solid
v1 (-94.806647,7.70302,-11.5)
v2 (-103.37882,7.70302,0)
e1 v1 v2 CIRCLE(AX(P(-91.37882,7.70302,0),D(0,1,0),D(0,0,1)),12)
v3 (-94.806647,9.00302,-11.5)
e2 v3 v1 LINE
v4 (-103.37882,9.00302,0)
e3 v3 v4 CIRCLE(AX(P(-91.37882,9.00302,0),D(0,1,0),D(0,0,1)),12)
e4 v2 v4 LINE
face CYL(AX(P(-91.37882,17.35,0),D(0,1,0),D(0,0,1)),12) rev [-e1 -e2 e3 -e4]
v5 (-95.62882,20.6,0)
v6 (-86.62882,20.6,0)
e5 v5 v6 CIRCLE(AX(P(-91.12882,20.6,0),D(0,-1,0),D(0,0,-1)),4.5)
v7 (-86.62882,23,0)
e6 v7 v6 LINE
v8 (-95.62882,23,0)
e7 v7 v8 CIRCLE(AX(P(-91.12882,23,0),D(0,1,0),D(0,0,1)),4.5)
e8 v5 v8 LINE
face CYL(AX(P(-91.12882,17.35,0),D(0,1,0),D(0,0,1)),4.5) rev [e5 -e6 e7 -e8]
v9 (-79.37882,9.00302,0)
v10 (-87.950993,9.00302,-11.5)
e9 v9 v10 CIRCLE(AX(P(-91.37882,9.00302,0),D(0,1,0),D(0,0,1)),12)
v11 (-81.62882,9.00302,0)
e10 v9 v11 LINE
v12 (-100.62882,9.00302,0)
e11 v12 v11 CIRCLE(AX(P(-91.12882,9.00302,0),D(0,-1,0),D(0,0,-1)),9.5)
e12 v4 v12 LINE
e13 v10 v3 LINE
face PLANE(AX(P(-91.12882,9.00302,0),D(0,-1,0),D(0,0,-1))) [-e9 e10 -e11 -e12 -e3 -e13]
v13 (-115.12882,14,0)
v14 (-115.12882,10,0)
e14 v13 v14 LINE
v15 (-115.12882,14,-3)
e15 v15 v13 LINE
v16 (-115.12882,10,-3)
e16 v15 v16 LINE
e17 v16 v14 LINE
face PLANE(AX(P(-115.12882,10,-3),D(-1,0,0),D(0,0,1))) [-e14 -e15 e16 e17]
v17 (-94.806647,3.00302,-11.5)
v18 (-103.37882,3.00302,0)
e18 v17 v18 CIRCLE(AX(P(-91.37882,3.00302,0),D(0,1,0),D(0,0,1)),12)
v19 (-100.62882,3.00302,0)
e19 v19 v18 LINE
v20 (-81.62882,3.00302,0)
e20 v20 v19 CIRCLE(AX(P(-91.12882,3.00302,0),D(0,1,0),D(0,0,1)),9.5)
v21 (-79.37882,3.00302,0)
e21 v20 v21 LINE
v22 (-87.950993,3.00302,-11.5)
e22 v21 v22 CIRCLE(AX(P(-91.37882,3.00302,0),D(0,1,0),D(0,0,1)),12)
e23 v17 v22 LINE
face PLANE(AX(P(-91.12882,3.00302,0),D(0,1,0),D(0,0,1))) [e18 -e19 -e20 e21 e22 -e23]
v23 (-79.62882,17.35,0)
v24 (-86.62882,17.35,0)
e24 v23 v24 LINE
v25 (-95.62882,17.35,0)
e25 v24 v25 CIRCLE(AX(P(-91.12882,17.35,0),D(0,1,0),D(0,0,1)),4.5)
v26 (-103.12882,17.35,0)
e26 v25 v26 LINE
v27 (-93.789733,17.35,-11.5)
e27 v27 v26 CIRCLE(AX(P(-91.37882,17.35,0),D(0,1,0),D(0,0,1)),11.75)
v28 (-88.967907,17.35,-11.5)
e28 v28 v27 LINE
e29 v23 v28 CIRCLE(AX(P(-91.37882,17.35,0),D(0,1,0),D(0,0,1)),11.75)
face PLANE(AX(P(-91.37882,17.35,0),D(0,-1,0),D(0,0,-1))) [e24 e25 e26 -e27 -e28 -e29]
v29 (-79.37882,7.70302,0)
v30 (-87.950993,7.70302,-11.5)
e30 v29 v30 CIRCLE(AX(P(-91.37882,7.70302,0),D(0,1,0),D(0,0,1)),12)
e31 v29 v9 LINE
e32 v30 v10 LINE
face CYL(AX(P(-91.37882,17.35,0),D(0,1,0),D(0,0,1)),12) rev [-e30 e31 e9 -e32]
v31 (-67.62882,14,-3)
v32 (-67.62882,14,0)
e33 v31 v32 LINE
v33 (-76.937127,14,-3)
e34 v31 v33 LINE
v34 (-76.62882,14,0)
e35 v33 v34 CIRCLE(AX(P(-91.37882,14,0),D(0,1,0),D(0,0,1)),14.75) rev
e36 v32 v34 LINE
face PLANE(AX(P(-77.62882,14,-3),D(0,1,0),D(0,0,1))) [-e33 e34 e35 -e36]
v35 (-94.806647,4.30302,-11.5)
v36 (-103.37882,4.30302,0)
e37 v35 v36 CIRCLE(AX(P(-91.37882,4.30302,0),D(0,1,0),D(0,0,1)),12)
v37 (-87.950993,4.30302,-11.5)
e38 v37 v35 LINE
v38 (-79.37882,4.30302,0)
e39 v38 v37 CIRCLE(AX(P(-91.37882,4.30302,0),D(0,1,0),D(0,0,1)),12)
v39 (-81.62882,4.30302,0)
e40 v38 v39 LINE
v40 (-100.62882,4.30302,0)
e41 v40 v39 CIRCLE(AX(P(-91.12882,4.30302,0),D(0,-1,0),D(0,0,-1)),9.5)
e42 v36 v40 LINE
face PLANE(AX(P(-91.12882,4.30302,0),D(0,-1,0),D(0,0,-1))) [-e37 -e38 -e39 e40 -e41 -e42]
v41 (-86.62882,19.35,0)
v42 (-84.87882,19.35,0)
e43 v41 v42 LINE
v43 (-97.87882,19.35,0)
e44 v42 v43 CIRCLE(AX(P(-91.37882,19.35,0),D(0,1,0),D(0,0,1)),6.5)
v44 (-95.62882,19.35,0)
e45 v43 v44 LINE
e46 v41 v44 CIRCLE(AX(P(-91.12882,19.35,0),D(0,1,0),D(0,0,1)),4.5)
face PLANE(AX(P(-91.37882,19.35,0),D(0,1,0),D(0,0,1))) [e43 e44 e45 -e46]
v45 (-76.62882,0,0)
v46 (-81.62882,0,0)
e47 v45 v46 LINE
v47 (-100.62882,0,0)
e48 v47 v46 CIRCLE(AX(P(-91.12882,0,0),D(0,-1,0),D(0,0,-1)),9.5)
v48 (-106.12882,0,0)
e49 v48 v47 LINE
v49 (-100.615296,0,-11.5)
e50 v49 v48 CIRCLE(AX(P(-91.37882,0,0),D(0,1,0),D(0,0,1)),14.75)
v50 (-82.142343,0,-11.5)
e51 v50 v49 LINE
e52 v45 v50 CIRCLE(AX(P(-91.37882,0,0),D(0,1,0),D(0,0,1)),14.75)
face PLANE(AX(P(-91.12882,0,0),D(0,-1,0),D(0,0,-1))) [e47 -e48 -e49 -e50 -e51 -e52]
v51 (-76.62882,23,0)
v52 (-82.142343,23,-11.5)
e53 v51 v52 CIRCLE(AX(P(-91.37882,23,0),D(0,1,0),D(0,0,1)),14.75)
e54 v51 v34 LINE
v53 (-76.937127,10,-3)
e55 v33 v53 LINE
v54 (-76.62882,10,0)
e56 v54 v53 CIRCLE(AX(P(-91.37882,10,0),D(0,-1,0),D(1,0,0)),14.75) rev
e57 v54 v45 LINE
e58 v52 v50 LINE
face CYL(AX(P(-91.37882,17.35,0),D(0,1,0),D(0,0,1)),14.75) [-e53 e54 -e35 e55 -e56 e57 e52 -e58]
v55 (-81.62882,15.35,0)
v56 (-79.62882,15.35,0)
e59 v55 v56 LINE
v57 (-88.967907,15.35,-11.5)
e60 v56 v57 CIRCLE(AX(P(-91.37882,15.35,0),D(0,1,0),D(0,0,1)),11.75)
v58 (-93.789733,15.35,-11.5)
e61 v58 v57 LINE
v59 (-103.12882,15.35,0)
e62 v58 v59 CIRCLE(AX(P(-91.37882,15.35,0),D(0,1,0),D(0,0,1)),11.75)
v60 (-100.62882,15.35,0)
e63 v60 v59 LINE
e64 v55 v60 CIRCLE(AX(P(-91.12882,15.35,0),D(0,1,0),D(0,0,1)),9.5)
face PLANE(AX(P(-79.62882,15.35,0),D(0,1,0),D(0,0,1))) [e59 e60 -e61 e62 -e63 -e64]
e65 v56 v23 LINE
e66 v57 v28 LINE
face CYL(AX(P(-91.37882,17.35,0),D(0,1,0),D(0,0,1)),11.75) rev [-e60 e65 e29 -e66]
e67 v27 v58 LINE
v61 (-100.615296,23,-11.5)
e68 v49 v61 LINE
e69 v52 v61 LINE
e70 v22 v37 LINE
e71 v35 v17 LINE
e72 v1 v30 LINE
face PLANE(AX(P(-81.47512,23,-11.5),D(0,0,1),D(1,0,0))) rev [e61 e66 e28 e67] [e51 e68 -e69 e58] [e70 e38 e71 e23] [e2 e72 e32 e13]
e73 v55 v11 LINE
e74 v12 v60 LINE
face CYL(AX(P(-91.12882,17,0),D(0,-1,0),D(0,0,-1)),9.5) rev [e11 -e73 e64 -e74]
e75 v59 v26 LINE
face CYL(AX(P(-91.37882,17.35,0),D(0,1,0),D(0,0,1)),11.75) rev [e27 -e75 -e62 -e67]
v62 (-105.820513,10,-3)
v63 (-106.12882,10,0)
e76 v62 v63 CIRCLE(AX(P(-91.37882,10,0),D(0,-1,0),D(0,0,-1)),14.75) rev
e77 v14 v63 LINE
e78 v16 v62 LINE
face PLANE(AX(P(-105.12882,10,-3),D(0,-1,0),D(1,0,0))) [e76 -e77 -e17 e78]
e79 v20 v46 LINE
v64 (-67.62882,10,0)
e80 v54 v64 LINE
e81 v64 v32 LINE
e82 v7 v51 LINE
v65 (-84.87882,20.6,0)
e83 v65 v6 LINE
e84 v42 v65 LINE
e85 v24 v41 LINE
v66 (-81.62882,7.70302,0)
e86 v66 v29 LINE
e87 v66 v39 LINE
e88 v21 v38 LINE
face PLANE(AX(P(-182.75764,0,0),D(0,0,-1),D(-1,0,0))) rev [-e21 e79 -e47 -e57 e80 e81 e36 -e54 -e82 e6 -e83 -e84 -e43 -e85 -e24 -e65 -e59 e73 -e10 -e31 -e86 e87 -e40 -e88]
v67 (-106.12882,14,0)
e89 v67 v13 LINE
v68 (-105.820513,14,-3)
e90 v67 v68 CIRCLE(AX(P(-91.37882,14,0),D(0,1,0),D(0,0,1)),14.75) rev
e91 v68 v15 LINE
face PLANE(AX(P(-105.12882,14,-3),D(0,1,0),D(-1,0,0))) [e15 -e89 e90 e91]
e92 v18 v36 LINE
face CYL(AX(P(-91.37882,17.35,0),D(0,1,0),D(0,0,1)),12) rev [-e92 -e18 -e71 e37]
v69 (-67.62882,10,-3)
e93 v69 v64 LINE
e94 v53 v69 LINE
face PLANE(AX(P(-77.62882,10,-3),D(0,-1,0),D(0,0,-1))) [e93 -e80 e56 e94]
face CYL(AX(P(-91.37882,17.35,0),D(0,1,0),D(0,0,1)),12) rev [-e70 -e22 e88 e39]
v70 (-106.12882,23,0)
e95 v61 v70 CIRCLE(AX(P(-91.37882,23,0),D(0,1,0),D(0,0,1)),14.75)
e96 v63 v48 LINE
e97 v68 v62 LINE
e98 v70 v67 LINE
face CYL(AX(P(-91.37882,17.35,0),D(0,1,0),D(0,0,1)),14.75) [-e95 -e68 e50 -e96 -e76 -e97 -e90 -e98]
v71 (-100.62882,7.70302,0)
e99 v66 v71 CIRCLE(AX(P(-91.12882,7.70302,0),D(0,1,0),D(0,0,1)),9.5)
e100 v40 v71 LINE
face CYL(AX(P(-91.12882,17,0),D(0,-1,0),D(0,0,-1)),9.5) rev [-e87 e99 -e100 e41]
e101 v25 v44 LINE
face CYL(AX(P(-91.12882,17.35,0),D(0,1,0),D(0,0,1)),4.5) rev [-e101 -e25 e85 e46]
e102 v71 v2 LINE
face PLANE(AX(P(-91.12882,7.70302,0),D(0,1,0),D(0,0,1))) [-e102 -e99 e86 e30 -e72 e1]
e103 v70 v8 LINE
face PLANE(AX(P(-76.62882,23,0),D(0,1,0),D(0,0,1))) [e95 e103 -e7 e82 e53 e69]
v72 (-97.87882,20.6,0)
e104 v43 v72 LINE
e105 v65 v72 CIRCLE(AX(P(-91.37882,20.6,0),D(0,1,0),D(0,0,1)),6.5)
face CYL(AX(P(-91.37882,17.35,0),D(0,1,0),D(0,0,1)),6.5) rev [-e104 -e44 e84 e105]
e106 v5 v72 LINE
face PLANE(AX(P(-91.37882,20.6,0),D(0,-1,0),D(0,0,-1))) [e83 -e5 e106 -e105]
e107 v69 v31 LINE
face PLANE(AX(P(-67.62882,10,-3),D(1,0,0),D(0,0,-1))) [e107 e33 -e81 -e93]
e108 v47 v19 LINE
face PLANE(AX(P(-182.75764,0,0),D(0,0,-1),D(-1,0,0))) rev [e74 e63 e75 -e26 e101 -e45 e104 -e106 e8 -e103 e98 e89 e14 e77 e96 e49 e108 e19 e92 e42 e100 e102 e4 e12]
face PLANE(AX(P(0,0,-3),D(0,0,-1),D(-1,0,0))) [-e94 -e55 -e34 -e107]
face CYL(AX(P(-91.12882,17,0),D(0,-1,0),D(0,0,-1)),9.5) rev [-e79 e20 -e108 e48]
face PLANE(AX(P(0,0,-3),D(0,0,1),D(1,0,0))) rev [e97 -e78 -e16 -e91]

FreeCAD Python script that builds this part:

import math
import FreeCAD as App
import Part
import Sketcher
Q = App.Units.Quantity


def add_polygon(sketch, points):
    """Adds a closed chain of lines whose ends are joined by coincident constraints."""
    first, n = sketch.GeometryCount, len(points)
    for a, b in zip(points, points[1:] + points[:1]):
        sketch.addGeometry(Part.LineSegment(App.Vector(*a, 0), App.Vector(*b, 0)), False)
    for i in range(n):
        sketch.addConstraint(Sketcher.Constraint("Coincident", first + i, 2, first + (i + 1) % n, 1))

doc = App.newDocument("Part")
params = doc.addObject("Spreadsheet::Sheet", "Params")
for row, (alias, value) in enumerate([
    ("sketch1_height", "2 mm"),
    ("sketch1_height2", "23 mm"),
    ("sketch1_width", "14.5 mm"),
    ("sketch1_width2", "11.5 mm"),
    ("sketch1_width3", "6.5 mm"),
    ("revolution_angle", "180 deg"),
    ("sketch2_radius", "9.5 mm"),
    ("pocket1_length", "17 mm"),
    ("sketch3_radius", "4.5 mm"),
    ("pocket2_length", "5.65 mm"),
    ("pocket3_length", "23 mm"),
    ("sketch5_width", "1 mm"),
    ("sketch5_height", "4 mm"),
    ("pocket4_length", "3 mm"),
    ("sketch6_width", "10 mm"),
    ("sketch6_height", "4 mm"),
    ("pad1_length", "3 mm"),
], start=1):
    params.set(f"A{row}", alias)
    params.set(f"B{row}", "=" + value)
    params.setAlias(f"B{row}", alias)

body = doc.addObject("PartDesign::Body", "Body")

# Sketch on XY plane
sketch1 = doc.addObject("Sketcher::SketchObject", "Sketch")
body.addObject(sketch1)
sketch1.AttachmentSupport = (doc.XY_Plane, [""])
sketch1.MapMode = "FlatFace"
add_polygon(sketch1, [(-106.1, 0), (-91.6, 0), (-91.6, 3), (-103.4, 3), (-103.4, 4.3), (-91.6, 4.3), (-91.6, 7.7), (-103.4, 7.7), (-103.4, 9), (-91.6, 9), (-91.6, 15.3), (-103.1, 15.3), (-103.1, 17.4), (-91.4, 17.4), (-91.4, 19.4), (-97.9, 19.4), (-97.9, 20.6), (-91.4, 20.6), (-91.4, 23), (-106.1, 23)])  # lines 0-19
sketch1.addGeometry(Part.LineSegment(App.Vector(-91.4, 23, 0), App.Vector(-91.4, 0, 0)), True)  # axis
sketch1.addConstraint([
    Sketcher.Constraint("Horizontal", 0),
    Sketcher.Constraint("Vertical", 1),
    Sketcher.Constraint("Horizontal", 2),
    Sketcher.Constraint("Vertical", 3),
    Sketcher.Constraint("Horizontal", 4),
    Sketcher.Constraint("Vertical", 5),
    Sketcher.Constraint("Horizontal", 6),
    Sketcher.Constraint("Vertical", 7),
    Sketcher.Constraint("Horizontal", 8),
    Sketcher.Constraint("Vertical", 9),
    Sketcher.Constraint("Horizontal", 10),
    Sketcher.Constraint("Vertical", 11),
    Sketcher.Constraint("Horizontal", 12),
    Sketcher.Constraint("Vertical", 13),
    Sketcher.Constraint("Horizontal", 14),
    Sketcher.Constraint("Vertical", 15),
    Sketcher.Constraint("Horizontal", 16),
    Sketcher.Constraint("Vertical", 17),
    Sketcher.Constraint("Horizontal", 18),
    Sketcher.Constraint("Vertical", 19),
    Sketcher.Constraint("Vertical", 20),
    Sketcher.Constraint("Coincident", 20, 1, 17, 2),
    Sketcher.Constraint("PointOnObject", 0, 2, -1),
    Sketcher.Constraint("PointOnObject", 20, 2, -1),
    Sketcher.Constraint("Vertical", 1, 2, 4, 2),
    Sketcher.Constraint("Vertical", 3, 2, 6, 2),
    Sketcher.Constraint("Vertical", 5, 2, 8, 2),
    Sketcher.Constraint("Vertical", 13, 2, 16, 2),
    Sketcher.Constraint("Equal", 8, 12),
    Sketcher.Constraint("Equal", 3, 7),
    Sketcher.Constraint("Equal", 11, 13),
    Sketcher.Constraint("DistanceY", 11, 1, 11, 2, Q("2 mm")),
    Sketcher.Constraint("DistanceY", 19, 2, 19, 1, Q("23 mm")),
    Sketcher.Constraint("DistanceX", 0, 1, 0, 2, Q("14.5 mm")),
    Sketcher.Constraint("DistanceX", 10, 2, 10, 1, Q("11.5 mm")),
    Sketcher.Constraint("DistanceX", 14, 2, 14, 1, Q("6.5 mm")),
    Sketcher.Constraint("DistanceY", 3, 1, 3, 2, Q("1.3 mm")),
    Sketcher.Constraint("DistanceY", 5, 1, 5, 2, Q("3.4 mm")),
    Sketcher.Constraint("DistanceY", 17, 1, 17, 2, Q("2.4 mm")),
    Sketcher.Constraint("DistanceX", 2, 2, 2, 1, Q("11.75 mm")),
    Sketcher.Constraint("DistanceY", 15, 1, 15, 2, Q("1.25 mm")),
    Sketcher.Constraint("DistanceY", 1, 1, 1, 2, Q("3.00302 mm")),
    Sketcher.Constraint("DistanceX", 0, 2, -1, 1, Q("91.62882 mm")),
])
sketch1.setExpression("Constraints[51]", "Params.sketch1_height")
sketch1.setExpression("Constraints[52]", "Params.sketch1_height2")
sketch1.setExpression("Constraints[53]", "Params.sketch1_width")
sketch1.setExpression("Constraints[54]", "Params.sketch1_width2")
sketch1.setExpression("Constraints[55]", "Params.sketch1_width3")
revolution = doc.addObject("PartDesign::Revolution", "Revolution")
body.addObject(revolution)
revolution.Profile = sketch1
revolution.ReferenceAxis = (sketch1, ["Axis0"])
revolution.setExpression("Angle", "Params.revolution_angle")

# Sketch on XZ plane
sketch2 = doc.addObject("Sketcher::SketchObject", "Sketch001")
body.addObject(sketch2)
sketch2.AttachmentSupport = (doc.XZ_Plane, [""])
sketch2.MapMode = "FlatFace"
sketch2.addGeometry([
    Part.LineSegment(App.Vector(-82, 0, 0), App.Vector(-101, 0, 0)),
    Part.ArcOfCircle(Part.Circle(App.Vector(-91, 0, 0), App.Vector(0, 0, 1), 10), math.radians(180), math.radians(360)),
], False)
sketch2.addConstraint([
    Sketcher.Constraint("Coincident", 0, 1, 1, 2),
    Sketcher.Constraint("Coincident", 1, 1, 0, 2),
    Sketcher.Constraint("Horizontal", 0),
    Sketcher.Constraint("PointOnObject", 1, 3, -1),
    Sketcher.Constraint("PointOnObject", 0, 1, -1),
    Sketcher.Constraint("Radius", 1, Q("9.5 mm")),
    Sketcher.Constraint("DistanceX", 1, 3, -1, 1, Q("91.12882 mm")),
])
sketch2.setExpression("Constraints[5]", "Params.sketch2_radius")
pocket1 = doc.addObject("PartDesign::Pocket", "Pocket")
body.addObject(pocket1)
pocket1.Profile = sketch2
pocket1.setExpression("Length", "Params.pocket1_length")

# Sketch on XZ plane
sketch3 = doc.addObject("Sketcher::SketchObject", "Sketch002")
body.addObject(sketch3)
sketch3.AttachmentSupport = (doc.XZ_Plane, [""])
sketch3.MapMode = "FlatFace"
sketch3.AttachmentOffset = App.Placement(App.Vector(0, 0, -17.35), App.Rotation())
sketch3.addGeometry([
    Part.LineSegment(App.Vector(-95.6, 0, 0), App.Vector(-86.6, 0, 0)),
    Part.ArcOfCircle(Part.Circle(App.Vector(-91.1, 0, 0), App.Vector(0, 0, 1), 4.5), math.radians(180), math.radians(360)),
], False)
sketch3.addConstraint([
    Sketcher.Constraint("Coincident", 0, 1, 1, 1),
    Sketcher.Constraint("Coincident", 1, 2, 0, 2),
    Sketcher.Constraint("Horizontal", 0),
    Sketcher.Constraint("PointOnObject", 1, 3, -1),
    Sketcher.Constraint("PointOnObject", 0, 1, -1),
    Sketcher.Constraint("Radius", 1, Q("4.5 mm")),
    Sketcher.Constraint("DistanceX", 1, 3, -1, 1, Q("91.12882 mm")),
])
sketch3.setExpression("Constraints[5]", "Params.sketch3_radius")
pocket2 = doc.addObject("PartDesign::Pocket", "Pocket001")
body.addObject(pocket2)
pocket2.Profile = sketch3
pocket2.setExpression("Length", "Params.pocket2_length")

# Sketch on XZ plane
sketch4 = doc.addObject("Sketcher::SketchObject", "Sketch003")
body.addObject(sketch4)
sketch4.AttachmentSupport = (doc.XZ_Plane, [""])
sketch4.MapMode = "FlatFace"
sketch4.AttachmentOffset = App.Placement(App.Vector(0, 0, -23), App.Rotation())
add_polygon(sketch4, [(-101.5, -11.5), (-101.5, -14.8), (-81.5, -14.8), (-81.5, -11.5)])  # lines 0-3
sketch4.addConstraint([
    Sketcher.Constraint("Vertical", 0),
    Sketcher.Constraint("Horizontal", 1),
    Sketcher.Constraint("Vertical", 2),
    Sketcher.Constraint("Horizontal", 3),
    Sketcher.Constraint("DistanceY", 2, 2, -1, 1, Q("11.5 mm")),
    Sketcher.Constraint("DistanceY", 0, 2, 0, 1, Q("3.310299 mm")),
    Sketcher.Constraint("DistanceX", 1, 1, 1, 2, Q("20.03693 mm")),
    Sketcher.Constraint("DistanceX", 0, 2, -1, 1, Q("101.51205 mm")),
])
pocket3 = doc.addObject("PartDesign::Pocket", "Pocket002")
body.addObject(pocket3)
pocket3.Profile = sketch4
pocket3.setExpression("Length", "Params.pocket3_length")
pocket3.Reversed = True

# Sketch on XY plane
sketch5 = doc.addObject("Sketcher::SketchObject", "Sketch004")
body.addObject(sketch5)
sketch5.AttachmentSupport = (doc.XY_Plane, [""])
sketch5.MapMode = "FlatFace"
add_polygon(sketch5, [(-106.1, 14), (-106.1, 10), (-105.1, 10), (-105.1, 14)])  # lines 0-3
add_polygon(sketch5, [(-77.6, 14), (-77.6, 10), (-76.6, 10), (-76.6, 14)])  # lines 4-7
sketch5.addConstraint([
    Sketcher.Constraint("Vertical", 0),
    Sketcher.Constraint("Horizontal", 1),
    Sketcher.Constraint("Vertical", 2),
    Sketcher.Constraint("Horizontal", 3),
    Sketcher.Constraint("Vertical", 4),
    Sketcher.Constraint("Horizontal", 5),
    Sketcher.Constraint("Vertical", 6),
    Sketcher.Constraint("Horizontal", 7),
    Sketcher.Constraint("Horizontal", 1, 2, 4, 2),
    Sketcher.Constraint("Horizontal", 3, 2, 6, 2),
    Sketcher.Constraint("Equal", 3, 5),
    Sketcher.Constraint("DistanceX", 1, 1, 1, 2, Q("1 mm")),
    Sketcher.Constraint("DistanceY", 0, 2, 0, 1, Q("4 mm")),
    Sketcher.Constraint("DistanceY", -1, 1, 0, 2, Q("10 mm")),
    Sketcher.Constraint("DistanceX", 1, 2, 4, 2, Q("27.5 mm")),
    Sketcher.Constraint("DistanceX", 0, 2, -1, 1, Q("106.12882 mm")),
])
sketch5.setExpression("Constraints[19]", "Params.sketch5_width")
sketch5.setExpression("Constraints[20]", "Params.sketch5_height")
pocket4 = doc.addObject("PartDesign::Pocket", "Pocket003")
body.addObject(pocket4)
pocket4.Profile = sketch5
pocket4.setExpression("Length", "Params.pocket4_length")

# Sketch on XY plane
sketch6 = doc.addObject("Sketcher::SketchObject", "Sketch005")
body.addObject(sketch6)
sketch6.AttachmentSupport = (doc.XY_Plane, [""])
sketch6.MapMode = "FlatFace"
add_polygon(sketch6, [(-115.1, 14), (-115.1, 10), (-105.1, 10), (-105.1, 14)])  # lines 0-3
add_polygon(sketch6, [(-77.6, 14), (-77.6, 10), (-67.6, 10), (-67.6, 14)])  # lines 4-7
sketch6.addConstraint([
    Sketcher.Constraint("Vertical", 0),
    Sketcher.Constraint("Horizontal", 1),
    Sketcher.Constraint("Vertical", 2),
    Sketcher.Constraint("Horizontal", 3),
    Sketcher.Constraint("Vertical", 4),
    Sketcher.Constraint("Horizontal", 5),
    Sketcher.Constraint("Vertical", 6),
    Sketcher.Constraint("Horizontal", 7),
    Sketcher.Constraint("Horizontal", 1, 2, 4, 2),
    Sketcher.Constraint("Horizontal", 3, 2, 6, 2),
    Sketcher.Constraint("Equal", 3, 5),
    Sketcher.Constraint("DistanceX", 1, 1, 1, 2, Q("10 mm")),
    Sketcher.Constraint("DistanceY", 0, 2, 0, 1, Q("4 mm")),
    Sketcher.Constraint("DistanceY", -1, 1, 0, 2, Q("10 mm")),
    Sketcher.Constraint("DistanceX", 1, 2, 4, 2, Q("27.5 mm")),
    Sketcher.Constraint("DistanceX", 0, 2, -1, 1, Q("115.12882 mm")),
])
sketch6.setExpression("Constraints[19]", "Params.sketch6_width")
sketch6.setExpression("Constraints[20]", "Params.sketch6_height")
pad1 = doc.addObject("PartDesign::Pad", "Pad")
body.addObject(pad1)
pad1.Profile = sketch6
pad1.setExpression("Length", "Params.pad1_length")
pad1.Reversed = True

doc.recompute()
